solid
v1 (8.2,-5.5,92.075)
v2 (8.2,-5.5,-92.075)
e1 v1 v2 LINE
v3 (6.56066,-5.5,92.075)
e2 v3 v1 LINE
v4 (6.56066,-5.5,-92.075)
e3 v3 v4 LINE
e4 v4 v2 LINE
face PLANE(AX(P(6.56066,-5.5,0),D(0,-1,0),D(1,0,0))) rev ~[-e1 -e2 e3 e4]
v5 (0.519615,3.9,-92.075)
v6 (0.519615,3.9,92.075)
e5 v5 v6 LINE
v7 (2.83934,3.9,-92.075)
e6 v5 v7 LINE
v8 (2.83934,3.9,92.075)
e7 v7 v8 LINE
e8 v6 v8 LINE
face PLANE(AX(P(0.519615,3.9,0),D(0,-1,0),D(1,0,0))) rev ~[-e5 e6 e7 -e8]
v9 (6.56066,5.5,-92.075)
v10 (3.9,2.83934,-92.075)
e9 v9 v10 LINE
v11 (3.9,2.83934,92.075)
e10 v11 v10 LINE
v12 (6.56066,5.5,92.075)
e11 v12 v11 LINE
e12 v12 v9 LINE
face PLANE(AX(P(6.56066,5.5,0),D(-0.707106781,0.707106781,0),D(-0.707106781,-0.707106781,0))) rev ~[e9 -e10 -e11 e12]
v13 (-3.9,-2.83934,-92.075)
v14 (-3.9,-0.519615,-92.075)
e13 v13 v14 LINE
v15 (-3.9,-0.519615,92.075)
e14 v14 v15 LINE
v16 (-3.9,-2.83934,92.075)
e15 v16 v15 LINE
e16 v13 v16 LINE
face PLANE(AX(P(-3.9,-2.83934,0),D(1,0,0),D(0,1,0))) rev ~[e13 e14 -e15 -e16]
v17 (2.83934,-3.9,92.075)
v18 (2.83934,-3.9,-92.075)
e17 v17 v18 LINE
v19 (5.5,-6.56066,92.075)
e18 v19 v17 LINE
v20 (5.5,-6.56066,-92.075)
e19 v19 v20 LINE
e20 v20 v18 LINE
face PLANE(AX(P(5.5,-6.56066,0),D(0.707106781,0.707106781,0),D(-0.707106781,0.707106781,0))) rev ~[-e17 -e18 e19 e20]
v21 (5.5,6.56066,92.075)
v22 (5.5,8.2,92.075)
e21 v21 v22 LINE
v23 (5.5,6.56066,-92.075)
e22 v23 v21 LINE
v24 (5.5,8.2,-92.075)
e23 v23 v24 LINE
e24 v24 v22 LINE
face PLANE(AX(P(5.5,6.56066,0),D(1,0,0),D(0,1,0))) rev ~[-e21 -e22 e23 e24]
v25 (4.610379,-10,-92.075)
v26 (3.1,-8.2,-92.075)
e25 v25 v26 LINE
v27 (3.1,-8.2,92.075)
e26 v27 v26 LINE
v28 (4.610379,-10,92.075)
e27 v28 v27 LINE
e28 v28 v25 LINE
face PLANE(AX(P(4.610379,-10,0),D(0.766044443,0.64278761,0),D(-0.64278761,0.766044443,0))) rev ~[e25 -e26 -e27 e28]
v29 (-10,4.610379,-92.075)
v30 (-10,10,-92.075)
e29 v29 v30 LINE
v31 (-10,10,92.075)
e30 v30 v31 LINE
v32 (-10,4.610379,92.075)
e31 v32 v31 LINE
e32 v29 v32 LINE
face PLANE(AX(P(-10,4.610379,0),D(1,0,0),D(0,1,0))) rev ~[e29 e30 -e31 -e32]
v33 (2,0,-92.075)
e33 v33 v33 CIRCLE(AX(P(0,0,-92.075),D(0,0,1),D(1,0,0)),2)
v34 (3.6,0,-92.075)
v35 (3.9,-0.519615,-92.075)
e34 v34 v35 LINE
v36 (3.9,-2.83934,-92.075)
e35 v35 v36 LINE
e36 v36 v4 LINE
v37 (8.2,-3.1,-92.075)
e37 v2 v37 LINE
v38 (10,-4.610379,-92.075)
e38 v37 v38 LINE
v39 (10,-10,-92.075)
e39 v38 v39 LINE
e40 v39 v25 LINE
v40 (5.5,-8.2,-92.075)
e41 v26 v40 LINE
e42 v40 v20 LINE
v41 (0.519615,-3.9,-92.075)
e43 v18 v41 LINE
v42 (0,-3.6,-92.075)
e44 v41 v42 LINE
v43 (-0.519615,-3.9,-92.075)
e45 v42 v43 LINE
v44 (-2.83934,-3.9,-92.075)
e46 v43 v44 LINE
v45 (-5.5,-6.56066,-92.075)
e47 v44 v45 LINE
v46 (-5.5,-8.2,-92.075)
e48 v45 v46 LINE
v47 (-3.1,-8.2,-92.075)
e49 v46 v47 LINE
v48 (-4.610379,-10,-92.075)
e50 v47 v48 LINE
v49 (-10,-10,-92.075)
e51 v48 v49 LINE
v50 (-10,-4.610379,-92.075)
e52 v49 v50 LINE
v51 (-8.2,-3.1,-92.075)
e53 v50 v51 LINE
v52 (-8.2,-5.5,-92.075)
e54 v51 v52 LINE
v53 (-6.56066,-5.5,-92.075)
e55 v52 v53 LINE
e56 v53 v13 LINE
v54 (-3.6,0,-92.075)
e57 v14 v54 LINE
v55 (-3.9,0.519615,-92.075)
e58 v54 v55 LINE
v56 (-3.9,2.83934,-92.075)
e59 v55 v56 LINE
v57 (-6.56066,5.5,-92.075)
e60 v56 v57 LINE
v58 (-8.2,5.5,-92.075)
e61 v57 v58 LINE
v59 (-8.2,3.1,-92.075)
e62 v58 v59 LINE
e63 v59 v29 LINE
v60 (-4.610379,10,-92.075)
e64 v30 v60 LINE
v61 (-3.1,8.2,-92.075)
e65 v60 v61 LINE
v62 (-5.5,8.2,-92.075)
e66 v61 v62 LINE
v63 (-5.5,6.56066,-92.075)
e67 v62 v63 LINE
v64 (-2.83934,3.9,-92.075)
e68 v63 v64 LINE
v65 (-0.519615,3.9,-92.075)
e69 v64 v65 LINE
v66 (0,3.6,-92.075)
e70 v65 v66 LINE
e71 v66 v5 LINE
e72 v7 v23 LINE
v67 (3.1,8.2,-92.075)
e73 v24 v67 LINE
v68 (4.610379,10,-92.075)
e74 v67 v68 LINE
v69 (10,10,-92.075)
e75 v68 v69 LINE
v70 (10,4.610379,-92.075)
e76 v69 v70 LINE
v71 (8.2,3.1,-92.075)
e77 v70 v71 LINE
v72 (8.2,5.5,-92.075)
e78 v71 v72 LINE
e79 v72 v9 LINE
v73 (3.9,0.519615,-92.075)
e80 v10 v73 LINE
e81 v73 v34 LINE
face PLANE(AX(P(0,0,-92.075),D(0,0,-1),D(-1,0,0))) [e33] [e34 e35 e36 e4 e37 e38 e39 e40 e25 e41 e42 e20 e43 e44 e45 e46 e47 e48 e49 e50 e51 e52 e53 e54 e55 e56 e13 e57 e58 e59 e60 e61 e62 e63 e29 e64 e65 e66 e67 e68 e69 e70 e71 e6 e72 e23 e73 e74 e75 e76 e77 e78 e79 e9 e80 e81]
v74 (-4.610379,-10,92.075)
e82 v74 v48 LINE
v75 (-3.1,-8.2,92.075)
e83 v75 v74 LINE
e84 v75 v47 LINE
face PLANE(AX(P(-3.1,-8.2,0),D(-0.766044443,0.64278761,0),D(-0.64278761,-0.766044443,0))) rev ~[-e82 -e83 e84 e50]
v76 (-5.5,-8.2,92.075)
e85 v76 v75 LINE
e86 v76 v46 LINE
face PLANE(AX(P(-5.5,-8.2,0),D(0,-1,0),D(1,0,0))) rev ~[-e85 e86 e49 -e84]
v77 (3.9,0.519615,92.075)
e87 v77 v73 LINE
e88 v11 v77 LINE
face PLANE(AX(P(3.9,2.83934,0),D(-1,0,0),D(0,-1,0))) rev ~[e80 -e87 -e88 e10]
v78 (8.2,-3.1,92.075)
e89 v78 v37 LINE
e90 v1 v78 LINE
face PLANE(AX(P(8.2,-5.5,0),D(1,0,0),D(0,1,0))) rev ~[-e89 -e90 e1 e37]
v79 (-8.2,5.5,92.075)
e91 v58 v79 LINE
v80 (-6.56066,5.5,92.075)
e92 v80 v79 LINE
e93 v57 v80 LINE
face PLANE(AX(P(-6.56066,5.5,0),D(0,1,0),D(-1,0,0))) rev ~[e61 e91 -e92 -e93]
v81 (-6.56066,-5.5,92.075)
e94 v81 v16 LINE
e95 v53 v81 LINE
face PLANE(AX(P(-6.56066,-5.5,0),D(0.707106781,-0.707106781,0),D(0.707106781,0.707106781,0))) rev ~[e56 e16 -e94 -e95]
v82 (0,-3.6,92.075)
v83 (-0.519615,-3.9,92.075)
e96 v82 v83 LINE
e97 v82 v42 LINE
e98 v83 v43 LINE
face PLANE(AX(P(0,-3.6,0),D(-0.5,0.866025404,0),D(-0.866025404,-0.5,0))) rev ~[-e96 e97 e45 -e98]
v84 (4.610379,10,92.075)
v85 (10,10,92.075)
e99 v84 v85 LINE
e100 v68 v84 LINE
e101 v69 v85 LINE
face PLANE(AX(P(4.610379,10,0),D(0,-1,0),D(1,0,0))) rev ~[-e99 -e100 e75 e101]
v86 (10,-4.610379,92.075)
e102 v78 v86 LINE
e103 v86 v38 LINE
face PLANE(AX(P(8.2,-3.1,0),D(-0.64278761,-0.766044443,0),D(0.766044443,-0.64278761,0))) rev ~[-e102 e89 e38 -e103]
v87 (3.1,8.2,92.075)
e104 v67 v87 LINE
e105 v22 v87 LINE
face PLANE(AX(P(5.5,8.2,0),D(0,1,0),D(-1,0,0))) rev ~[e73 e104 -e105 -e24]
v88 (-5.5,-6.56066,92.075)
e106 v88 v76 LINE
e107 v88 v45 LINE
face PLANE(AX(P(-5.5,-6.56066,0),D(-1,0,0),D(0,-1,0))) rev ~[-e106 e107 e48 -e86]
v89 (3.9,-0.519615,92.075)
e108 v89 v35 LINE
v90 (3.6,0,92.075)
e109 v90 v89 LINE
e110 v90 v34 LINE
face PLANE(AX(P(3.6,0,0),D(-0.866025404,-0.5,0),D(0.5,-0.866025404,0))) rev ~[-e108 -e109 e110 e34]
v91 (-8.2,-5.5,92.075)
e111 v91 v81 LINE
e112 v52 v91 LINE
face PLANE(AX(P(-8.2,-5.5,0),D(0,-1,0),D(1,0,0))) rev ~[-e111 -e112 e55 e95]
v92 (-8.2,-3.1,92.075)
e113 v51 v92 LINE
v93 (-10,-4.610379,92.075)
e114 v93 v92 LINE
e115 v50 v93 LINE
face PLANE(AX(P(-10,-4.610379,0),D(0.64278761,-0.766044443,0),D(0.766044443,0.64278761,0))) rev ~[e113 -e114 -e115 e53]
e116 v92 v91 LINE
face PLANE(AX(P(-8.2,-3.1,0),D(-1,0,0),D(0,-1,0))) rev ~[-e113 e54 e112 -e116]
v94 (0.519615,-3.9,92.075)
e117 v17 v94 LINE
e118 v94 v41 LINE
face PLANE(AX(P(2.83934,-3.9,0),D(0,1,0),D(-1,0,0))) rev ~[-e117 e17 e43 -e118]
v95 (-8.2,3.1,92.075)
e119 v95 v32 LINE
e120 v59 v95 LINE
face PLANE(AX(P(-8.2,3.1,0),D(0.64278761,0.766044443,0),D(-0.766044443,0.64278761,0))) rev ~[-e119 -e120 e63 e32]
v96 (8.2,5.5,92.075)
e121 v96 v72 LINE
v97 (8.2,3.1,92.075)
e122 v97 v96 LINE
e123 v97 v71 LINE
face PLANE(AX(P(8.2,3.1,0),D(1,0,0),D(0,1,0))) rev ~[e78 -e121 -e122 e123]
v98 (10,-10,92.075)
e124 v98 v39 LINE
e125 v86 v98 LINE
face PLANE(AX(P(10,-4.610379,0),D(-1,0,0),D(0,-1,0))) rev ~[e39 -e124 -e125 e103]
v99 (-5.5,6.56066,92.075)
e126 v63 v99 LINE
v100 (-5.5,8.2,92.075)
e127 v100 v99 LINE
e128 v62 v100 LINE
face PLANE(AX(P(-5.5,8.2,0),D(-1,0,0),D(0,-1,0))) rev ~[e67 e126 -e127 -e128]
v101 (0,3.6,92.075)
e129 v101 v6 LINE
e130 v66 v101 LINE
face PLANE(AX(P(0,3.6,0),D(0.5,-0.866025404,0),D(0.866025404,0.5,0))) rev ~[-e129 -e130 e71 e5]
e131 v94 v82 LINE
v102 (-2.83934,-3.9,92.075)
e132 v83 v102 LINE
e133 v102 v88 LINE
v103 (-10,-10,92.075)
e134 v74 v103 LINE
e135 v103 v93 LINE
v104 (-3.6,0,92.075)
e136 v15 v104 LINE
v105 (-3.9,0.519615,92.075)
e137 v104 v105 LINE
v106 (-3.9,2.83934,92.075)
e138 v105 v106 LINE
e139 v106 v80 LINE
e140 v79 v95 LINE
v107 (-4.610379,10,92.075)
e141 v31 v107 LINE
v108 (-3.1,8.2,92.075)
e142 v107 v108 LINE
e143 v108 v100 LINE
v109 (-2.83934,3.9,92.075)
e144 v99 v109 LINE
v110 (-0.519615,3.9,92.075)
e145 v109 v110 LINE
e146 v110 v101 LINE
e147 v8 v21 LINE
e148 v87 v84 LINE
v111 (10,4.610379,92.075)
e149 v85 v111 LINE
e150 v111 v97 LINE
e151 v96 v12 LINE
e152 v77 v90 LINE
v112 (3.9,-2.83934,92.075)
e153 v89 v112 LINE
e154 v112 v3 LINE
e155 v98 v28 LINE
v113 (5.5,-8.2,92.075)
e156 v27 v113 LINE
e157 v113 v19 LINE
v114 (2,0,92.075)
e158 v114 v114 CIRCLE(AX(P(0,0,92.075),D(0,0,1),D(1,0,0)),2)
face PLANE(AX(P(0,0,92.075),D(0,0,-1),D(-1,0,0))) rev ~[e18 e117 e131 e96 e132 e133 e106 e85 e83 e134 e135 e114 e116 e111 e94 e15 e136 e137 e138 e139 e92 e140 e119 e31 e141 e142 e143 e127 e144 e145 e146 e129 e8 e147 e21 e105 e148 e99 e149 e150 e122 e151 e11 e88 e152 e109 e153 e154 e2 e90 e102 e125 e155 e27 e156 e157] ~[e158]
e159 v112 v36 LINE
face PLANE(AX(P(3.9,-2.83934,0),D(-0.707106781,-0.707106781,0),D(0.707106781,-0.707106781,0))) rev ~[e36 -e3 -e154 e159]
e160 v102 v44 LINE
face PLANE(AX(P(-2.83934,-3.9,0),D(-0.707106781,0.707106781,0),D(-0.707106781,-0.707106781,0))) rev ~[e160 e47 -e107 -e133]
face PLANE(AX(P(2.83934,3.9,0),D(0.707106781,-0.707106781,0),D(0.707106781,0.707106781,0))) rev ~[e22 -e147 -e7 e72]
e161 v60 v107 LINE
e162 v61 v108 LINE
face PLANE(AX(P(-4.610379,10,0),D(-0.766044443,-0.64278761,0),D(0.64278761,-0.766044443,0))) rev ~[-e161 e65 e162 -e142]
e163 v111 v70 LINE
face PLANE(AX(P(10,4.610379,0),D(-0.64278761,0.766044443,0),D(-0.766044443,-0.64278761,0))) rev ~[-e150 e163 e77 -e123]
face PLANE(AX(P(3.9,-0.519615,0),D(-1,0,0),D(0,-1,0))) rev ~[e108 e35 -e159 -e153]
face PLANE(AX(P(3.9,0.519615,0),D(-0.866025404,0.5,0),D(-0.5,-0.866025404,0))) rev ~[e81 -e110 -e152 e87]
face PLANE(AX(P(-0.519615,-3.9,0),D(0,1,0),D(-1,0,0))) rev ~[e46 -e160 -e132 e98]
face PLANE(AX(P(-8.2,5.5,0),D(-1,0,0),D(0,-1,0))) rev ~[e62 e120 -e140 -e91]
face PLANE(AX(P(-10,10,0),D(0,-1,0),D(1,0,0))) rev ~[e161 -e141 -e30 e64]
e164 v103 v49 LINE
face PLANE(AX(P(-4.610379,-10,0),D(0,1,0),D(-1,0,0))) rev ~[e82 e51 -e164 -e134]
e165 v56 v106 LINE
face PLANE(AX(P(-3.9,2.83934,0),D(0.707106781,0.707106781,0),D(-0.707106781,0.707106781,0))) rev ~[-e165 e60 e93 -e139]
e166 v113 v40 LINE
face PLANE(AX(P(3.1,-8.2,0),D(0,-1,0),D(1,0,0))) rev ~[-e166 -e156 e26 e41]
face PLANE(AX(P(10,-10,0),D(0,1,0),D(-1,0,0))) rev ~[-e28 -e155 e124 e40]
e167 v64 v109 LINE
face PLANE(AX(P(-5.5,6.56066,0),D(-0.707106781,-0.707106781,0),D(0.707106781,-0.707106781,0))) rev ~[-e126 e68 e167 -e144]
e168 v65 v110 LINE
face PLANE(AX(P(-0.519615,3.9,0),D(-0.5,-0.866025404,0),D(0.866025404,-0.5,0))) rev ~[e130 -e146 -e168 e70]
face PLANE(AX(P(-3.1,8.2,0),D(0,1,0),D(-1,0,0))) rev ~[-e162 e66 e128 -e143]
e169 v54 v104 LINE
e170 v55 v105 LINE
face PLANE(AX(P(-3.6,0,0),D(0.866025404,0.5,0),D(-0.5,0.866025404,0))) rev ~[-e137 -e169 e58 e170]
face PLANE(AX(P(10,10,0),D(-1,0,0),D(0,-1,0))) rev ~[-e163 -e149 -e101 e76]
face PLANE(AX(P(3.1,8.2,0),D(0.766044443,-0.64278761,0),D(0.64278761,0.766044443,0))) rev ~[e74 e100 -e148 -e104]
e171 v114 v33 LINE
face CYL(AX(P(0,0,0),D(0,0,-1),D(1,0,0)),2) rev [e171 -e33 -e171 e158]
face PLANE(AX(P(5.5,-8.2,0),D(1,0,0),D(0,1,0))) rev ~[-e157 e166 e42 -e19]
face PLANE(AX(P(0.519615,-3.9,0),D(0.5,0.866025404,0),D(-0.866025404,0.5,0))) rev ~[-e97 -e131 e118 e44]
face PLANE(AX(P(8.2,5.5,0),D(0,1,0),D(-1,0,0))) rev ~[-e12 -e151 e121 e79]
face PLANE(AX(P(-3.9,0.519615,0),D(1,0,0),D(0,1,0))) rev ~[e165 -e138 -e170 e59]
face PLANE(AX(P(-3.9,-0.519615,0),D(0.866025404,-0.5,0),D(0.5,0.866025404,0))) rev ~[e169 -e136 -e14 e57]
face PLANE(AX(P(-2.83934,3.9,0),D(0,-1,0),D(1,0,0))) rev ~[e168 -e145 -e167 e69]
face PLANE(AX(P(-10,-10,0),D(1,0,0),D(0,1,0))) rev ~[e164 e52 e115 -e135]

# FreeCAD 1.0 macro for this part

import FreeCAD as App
import Part
import Sketcher
from FreeCAD import Vector
Q = App.Units.Quantity


def add_polygon(sketch, points):
    """Adds a closed chain of lines whose ends are joined by coincident constraints."""
    first, n = sketch.GeometryCount, len(points)
    for a, b in zip(points, points[1:] + points[:1]):
        sketch.addGeometry(Part.LineSegment(App.Vector(*a, 0), App.Vector(*b, 0)), False)
    for i in range(n):
        sketch.addConstraint(Sketcher.Constraint("Coincident", first + i, 2, first + (i + 1) % n, 1))

doc = App.newDocument("Part")
body = doc.addObject("PartDesign::Body", "Body")

sketch1 = doc.addObject("Sketcher::SketchObject", "Sketch")
body.addObject(sketch1)
sketch1.AttachmentSupport = (doc.XY_Plane, [""])
sketch1.MapMode = "FlatFace"
add_polygon(sketch1, [(10, 4.610379), (10, 10), (4.610379, 10), (3.1, 8.2), (5.5, 8.2), (5.5, 6.56066), (2.83934, 3.9), (0.519615, 3.9), (0, 3.6), (-0.519615, 3.9), (-2.83934, 3.9), (-5.5, 6.56066), (-5.5, 8.2), (-3.1, 8.2), (-4.610379, 10), (-10, 10), (-10, 4.610379), (-8.2, 3.1), (-8.2, 5.5), (-6.56066, 5.5), (-3.9, 2.83934), (-3.9, 0.519615), (-3.6, 0), (-3.9, -0.519615), (-3.9, -2.83934), (-6.56066, -5.5), (-8.2, -5.5), (-8.2, -3.1), (-10, -4.610379), (-10, -10), (-4.610379, -10), (-3.1, -8.2), (-5.5, -8.2), (-5.5, -6.56066), (-2.83934, -3.9), (-0.519615, -3.9), (0, -3.6), (0.519615, -3.9), (2.83934, -3.9), (5.5, -6.56066), (5.5, -8.2), (3.1, -8.2), (4.610379, -10), (10, -10), (10, -4.610379), (8.2, -3.1), (8.2, -5.5), (6.56066, -5.5), (3.9, -2.83934), (3.9, -0.519615), (3.6, 0), (3.9, 0.519615), (3.9, 2.83934), (6.56066, 5.5), (8.2, 5.5), (8.2, 3.1)])
sketch1.addGeometry(Part.Circle(Vector(0, 0, 0), Vector(0, 0, 1), 2), False)
sketch1.addConstraint([
    Sketcher.Constraint("Vertical", 0),
    Sketcher.Constraint("Horizontal", 1),
    Sketcher.Constraint("Horizontal", 3),
    Sketcher.Constraint("Vertical", 4),
    Sketcher.Constraint("Horizontal", 6),
    Sketcher.Constraint("Horizontal", 9),
    Sketcher.Constraint("Vertical", 11),
    Sketcher.Constraint("Horizontal", 12),
    Sketcher.Constraint("Horizontal", 14),
    Sketcher.Constraint("Vertical", 15),
    Sketcher.Constraint("Vertical", 17),
    Sketcher.Constraint("Horizontal", 18),
    Sketcher.Constraint("Vertical", 20),
    Sketcher.Constraint("Vertical", 23),
    Sketcher.Constraint("Horizontal", 25),
    Sketcher.Constraint("Vertical", 26),
    Sketcher.Constraint("Vertical", 28),
    Sketcher.Constraint("Horizontal", 29),
    Sketcher.Constraint("Horizontal", 31),
    Sketcher.Constraint("Vertical", 32),
    Sketcher.Constraint("Horizontal", 34),
    Sketcher.Constraint("Horizontal", 37),
    Sketcher.Constraint("Vertical", 39),
    Sketcher.Constraint("Horizontal", 40),
    Sketcher.Constraint("Horizontal", 42),
    Sketcher.Constraint("Vertical", 43),
    Sketcher.Constraint("Vertical", 45),
    Sketcher.Constraint("Horizontal", 46),
    Sketcher.Constraint("Vertical", 48),
    Sketcher.Constraint("Vertical", 51),
    Sketcher.Constraint("Horizontal", 53),
    Sketcher.Constraint("Vertical", 54),
    Sketcher.Constraint("Coincident", 56, 3, -1, 1),
    Sketcher.Constraint("Symmetric", 0, 2, 28, 2, -1, 1),
    Sketcher.Constraint("Symmetric", 2, 2, 30, 2, -1, 1),
    Sketcher.Constraint("Symmetric", 4, 2, 32, 2, -1, 1),
    Sketcher.Constraint("Symmetric", 5, 2, 33, 2, -1, 1),
    Sketcher.Constraint("Symmetric", 7, 2, 35, 2, -1, 1),
    Sketcher.Constraint("Symmetric", 8, 2, 36, 2, -1, 1),
    Sketcher.Constraint("Symmetric", 10, 2, 38, 2, -1, 1),
    Sketcher.Constraint("Symmetric", 12, 2, 40, 2, -1, 1),
    Sketcher.Constraint("Symmetric", 13, 2, 41, 2, -1, 1),
    Sketcher.Constraint("Symmetric", 15, 2, 43, 2, -1, 1),
    Sketcher.Constraint("Symmetric", 16, 2, 44, 2, -1, 1),
    Sketcher.Constraint("Symmetric", 18, 2, 46, 2, -1, 1),
    Sketcher.Constraint("Symmetric", 19, 2, 47, 2, -1, 1),
    Sketcher.Constraint("Symmetric", 21, 2, 49, 2, -1, 1),
    Sketcher.Constraint("Symmetric", 22, 2, 50, 2, -1, 1),
    Sketcher.Constraint("Symmetric", 24, 2, 52, 2, -1, 1),
    Sketcher.Constraint("Symmetric", 26, 2, 54, 2, -1, 1),
    Sketcher.Constraint("Symmetric", 6, 2, 8, 2, -2),
    Sketcher.Constraint("Symmetric", 4, 2, 10, 2, -2),
    Sketcher.Constraint("Symmetric", 2, 2, 12, 2, -2),
    Sketcher.Constraint("Symmetric", 1, 2, 13, 2, -2),
    Sketcher.Constraint("Symmetric", 27, 2, 43, 2, -2),
    Sketcher.Constraint("Symmetric", 26, 2, 44, 2, -2),
    Sketcher.Constraint("Symmetric", 24, 2, 46, 2, -2),
    Sketcher.Constraint("Symmetric", 23, 2, 47, 2, -2),
    Sketcher.Constraint("PointOnObject", 7, 2, -2),
    Sketcher.Constraint("PointOnObject", 21, 2, -1),
    Sketcher.Constraint("Perpendicular", 5, 10),
    Sketcher.Constraint("Perpendicular", 2, 16),
    Sketcher.Constraint("Parallel", 10, 19),
    Sketcher.Constraint("Perpendicular", 7, 21),
    Sketcher.Constraint("Perpendicular", 8, 22),
    Sketcher.Constraint("Perpendicular", 19, 24),
    Sketcher.Constraint("Perpendicular", 16, 30),
    Sketcher.Constraint("Perpendicular", 21, 35),
    Sketcher.Constraint("Perpendicular", 33, 38),
    Sketcher.Constraint("Perpendicular", 35, 49),
    Sketcher.Constraint("Perpendicular", 47, 52),
    Sketcher.Constraint("Perpendicular", 41, 55),
    Sketcher.Constraint("Equal", 42, 0),
    Sketcher.Constraint("Equal", 53, 4),
    Sketcher.Constraint("Equal", 40, 17),
    Sketcher.Constraint("Equal", 37, 20),
    Sketcher.Constraint("Equal", 13, 16),
    Sketcher.Constraint("Equal", 10, 19),
    Sketcher.Constraint("Equal", 8, 21),
    Sketcher.Constraint("Diameter", 56, Q("4 mm")),
    Sketcher.Constraint("Angle", 2, Q("-130 deg")),
    Sketcher.Constraint("Angle", 7, Q("-150 deg")),
    Sketcher.Constraint("DistanceX", 3, 1, 3, 2, Q("2.4 mm")),
    Sketcher.Constraint("DistanceX", -1, 1, 0, 2, Q("10 mm")),
    Sketcher.Constraint("Distance", 7, Q("0.6 mm")),
    Sketcher.Constraint("DistanceX", -1, 1, 2, 2, Q("3.1 mm")),
    Sketcher.Constraint("DistanceY", -1, 1, 2, 2, Q("8.2 mm")),
    Sketcher.Constraint("DistanceY", -1, 1, 5, 2, Q("3.9 mm")),
    Sketcher.Constraint("DistanceX", 18, 1, 18, 2, Q("1.63934 mm")),
])
pad1 = doc.addObject("PartDesign::Pad", "Pad")
body.addObject(pad1)
pad1.Profile = sketch1
pad1.Length = 184.15
pad1.Midplane = True

doc.recompute()
